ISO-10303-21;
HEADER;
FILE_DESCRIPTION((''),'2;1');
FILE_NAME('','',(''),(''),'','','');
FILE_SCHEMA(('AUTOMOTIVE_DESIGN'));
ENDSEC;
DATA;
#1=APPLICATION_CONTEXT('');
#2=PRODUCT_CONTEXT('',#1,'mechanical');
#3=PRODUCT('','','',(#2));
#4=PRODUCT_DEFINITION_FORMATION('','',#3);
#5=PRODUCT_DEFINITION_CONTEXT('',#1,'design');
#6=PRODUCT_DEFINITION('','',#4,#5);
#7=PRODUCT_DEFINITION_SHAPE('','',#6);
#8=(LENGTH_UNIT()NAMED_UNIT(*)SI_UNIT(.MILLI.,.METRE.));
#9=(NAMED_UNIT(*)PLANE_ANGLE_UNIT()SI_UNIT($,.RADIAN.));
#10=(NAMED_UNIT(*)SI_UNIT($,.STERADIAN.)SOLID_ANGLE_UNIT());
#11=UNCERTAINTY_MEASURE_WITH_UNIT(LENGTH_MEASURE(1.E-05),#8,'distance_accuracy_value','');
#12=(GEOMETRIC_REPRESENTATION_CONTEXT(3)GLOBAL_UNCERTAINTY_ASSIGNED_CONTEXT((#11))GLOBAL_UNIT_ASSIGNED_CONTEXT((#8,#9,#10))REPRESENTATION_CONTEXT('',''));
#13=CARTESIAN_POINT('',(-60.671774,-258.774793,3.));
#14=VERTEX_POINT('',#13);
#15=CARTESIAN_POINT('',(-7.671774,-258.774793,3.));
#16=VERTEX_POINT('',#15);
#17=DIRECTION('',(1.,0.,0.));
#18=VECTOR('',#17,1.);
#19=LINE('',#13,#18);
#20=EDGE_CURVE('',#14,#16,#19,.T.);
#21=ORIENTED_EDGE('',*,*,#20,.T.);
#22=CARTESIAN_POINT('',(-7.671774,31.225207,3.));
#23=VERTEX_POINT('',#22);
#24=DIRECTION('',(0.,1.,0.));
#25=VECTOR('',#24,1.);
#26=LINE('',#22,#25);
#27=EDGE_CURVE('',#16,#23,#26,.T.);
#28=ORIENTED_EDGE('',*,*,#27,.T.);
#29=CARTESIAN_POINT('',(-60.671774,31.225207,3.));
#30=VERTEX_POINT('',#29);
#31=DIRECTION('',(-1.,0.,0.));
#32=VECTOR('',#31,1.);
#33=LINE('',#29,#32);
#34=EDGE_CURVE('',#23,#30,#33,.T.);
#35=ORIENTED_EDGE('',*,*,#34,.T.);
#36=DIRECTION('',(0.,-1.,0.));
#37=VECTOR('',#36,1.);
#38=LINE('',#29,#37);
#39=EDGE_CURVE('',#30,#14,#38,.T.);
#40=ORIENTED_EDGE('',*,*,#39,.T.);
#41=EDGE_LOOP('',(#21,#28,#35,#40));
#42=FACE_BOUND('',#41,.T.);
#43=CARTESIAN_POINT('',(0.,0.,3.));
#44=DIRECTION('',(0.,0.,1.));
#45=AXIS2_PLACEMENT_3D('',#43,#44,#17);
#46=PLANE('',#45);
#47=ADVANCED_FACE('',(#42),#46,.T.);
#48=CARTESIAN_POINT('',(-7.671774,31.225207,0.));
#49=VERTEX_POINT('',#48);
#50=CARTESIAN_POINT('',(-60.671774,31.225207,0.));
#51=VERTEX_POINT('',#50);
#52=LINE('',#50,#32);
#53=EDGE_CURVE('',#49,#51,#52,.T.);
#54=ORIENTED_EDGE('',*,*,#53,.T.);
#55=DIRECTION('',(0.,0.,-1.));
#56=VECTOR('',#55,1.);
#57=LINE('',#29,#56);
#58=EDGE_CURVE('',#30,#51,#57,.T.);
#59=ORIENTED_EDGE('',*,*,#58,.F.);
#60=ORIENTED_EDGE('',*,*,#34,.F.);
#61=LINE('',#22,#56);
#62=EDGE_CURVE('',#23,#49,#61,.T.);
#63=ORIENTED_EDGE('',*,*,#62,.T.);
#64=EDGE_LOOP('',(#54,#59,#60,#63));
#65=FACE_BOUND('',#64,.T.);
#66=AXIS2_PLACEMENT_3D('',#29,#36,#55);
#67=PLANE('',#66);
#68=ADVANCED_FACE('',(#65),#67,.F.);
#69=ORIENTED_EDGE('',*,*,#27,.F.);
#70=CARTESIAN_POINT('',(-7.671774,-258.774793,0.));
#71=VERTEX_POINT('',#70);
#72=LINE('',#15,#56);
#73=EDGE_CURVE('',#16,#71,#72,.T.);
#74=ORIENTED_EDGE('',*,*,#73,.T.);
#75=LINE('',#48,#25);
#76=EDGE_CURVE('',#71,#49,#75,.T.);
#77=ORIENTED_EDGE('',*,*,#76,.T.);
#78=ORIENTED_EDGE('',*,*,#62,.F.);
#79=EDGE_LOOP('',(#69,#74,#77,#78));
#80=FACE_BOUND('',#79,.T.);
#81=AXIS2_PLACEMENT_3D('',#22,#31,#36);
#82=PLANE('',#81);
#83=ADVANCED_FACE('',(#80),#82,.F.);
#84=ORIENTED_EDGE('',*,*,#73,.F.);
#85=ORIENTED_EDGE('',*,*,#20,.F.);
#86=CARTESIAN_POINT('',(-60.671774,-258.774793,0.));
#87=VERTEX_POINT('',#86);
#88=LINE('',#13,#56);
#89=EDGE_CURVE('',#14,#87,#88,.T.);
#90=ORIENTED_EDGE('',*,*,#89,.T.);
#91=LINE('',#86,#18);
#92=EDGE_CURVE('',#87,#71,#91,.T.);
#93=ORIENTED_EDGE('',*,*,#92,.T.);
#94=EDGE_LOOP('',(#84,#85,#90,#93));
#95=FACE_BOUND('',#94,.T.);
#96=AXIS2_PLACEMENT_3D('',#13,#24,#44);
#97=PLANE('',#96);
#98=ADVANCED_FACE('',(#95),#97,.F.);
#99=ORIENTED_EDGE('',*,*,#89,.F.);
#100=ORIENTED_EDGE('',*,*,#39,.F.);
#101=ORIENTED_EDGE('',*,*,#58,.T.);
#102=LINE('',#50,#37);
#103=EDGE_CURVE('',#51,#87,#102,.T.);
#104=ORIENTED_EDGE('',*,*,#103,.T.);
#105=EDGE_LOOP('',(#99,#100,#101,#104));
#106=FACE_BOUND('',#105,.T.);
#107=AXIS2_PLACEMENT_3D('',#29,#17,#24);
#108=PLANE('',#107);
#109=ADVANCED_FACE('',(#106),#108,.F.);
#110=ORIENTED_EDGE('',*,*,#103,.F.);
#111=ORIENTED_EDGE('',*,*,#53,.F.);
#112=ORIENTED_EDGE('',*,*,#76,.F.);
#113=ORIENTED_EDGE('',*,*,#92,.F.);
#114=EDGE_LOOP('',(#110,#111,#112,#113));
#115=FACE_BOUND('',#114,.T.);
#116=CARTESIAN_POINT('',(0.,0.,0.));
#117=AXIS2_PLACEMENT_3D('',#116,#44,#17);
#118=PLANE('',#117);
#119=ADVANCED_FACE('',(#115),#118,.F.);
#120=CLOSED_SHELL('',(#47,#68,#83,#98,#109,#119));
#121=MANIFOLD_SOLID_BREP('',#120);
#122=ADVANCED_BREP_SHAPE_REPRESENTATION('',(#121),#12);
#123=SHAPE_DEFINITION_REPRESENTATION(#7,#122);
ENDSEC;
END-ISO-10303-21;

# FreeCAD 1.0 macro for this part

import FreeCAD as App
import Part
import Sketcher
from FreeCAD import Vector


def add_polygon(sketch, points):
    """Adds a closed chain of lines whose ends are joined by coincident constraints."""
    first, n = sketch.GeometryCount, len(points)
    for a, b in zip(points, points[1:] + points[:1]):
        sketch.addGeometry(Part.LineSegment(App.Vector(*a, 0), App.Vector(*b, 0)), False)
    for i in range(n):
        sketch.addConstraint(Sketcher.Constraint("Coincident", first + i, 2, first + (i + 1) % n, 1))

doc = App.newDocument("Part")
params = doc.addObject("Spreadsheet::Sheet", "Params")
for row, (alias, value) in enumerate([
    ("sketch1_width", "53 mm"),
    ("sketch1_height", "290 mm"),
    ("pad1_length", "3 mm"),
], start=1):
    params.set(f"A{row}", alias)
    params.set(f"B{row}", "=" + value)
    params.setAlias(f"B{row}", alias)

body = doc.addObject("PartDesign::Body", "Body")

sketch1 = body.newObject("Sketcher::SketchObject", "Sketch")
sketch1.AttachmentSupport = (doc.getObject("XY_Plane"), [""])
sketch1.MapMode = "FlatFace"
add_polygon(sketch1, [(-61, 31), (-61, -259), (-8, -259), (-8, 31)])
sketch1.addConstraint(Sketcher.Constraint("Vertical", 0))
sketch1.addConstraint(Sketcher.Constraint("Horizontal", 1))
sketch1.addConstraint(Sketcher.Constraint("Vertical", 2))
sketch1.addConstraint(Sketcher.Constraint("Horizontal", 3))
sketch1.addConstraint(Sketcher.Constraint("DistanceX", 1, 1, 1, 2, 53.0))
sketch1.addConstraint(Sketcher.Constraint("DistanceY", 0, 2, 0, 1, 290.0))
sketch1.addConstraint(Sketcher.Constraint("DistanceX", 0, 2, -1, 1, 60.671774))
sketch1.addConstraint(Sketcher.Constraint("DistanceY", 0, 2, -1, 1, 258.774793))
sketch1.setExpression("Constraints[8]", "Params.sketch1_width")
sketch1.setExpression("Constraints[9]", "Params.sketch1_height")
pad1 = body.newObject("PartDesign::Pad", "Pad")
pad1.Profile = sketch1
pad1.setExpression("Length", "Params.pad1_length")

doc.recompute()
